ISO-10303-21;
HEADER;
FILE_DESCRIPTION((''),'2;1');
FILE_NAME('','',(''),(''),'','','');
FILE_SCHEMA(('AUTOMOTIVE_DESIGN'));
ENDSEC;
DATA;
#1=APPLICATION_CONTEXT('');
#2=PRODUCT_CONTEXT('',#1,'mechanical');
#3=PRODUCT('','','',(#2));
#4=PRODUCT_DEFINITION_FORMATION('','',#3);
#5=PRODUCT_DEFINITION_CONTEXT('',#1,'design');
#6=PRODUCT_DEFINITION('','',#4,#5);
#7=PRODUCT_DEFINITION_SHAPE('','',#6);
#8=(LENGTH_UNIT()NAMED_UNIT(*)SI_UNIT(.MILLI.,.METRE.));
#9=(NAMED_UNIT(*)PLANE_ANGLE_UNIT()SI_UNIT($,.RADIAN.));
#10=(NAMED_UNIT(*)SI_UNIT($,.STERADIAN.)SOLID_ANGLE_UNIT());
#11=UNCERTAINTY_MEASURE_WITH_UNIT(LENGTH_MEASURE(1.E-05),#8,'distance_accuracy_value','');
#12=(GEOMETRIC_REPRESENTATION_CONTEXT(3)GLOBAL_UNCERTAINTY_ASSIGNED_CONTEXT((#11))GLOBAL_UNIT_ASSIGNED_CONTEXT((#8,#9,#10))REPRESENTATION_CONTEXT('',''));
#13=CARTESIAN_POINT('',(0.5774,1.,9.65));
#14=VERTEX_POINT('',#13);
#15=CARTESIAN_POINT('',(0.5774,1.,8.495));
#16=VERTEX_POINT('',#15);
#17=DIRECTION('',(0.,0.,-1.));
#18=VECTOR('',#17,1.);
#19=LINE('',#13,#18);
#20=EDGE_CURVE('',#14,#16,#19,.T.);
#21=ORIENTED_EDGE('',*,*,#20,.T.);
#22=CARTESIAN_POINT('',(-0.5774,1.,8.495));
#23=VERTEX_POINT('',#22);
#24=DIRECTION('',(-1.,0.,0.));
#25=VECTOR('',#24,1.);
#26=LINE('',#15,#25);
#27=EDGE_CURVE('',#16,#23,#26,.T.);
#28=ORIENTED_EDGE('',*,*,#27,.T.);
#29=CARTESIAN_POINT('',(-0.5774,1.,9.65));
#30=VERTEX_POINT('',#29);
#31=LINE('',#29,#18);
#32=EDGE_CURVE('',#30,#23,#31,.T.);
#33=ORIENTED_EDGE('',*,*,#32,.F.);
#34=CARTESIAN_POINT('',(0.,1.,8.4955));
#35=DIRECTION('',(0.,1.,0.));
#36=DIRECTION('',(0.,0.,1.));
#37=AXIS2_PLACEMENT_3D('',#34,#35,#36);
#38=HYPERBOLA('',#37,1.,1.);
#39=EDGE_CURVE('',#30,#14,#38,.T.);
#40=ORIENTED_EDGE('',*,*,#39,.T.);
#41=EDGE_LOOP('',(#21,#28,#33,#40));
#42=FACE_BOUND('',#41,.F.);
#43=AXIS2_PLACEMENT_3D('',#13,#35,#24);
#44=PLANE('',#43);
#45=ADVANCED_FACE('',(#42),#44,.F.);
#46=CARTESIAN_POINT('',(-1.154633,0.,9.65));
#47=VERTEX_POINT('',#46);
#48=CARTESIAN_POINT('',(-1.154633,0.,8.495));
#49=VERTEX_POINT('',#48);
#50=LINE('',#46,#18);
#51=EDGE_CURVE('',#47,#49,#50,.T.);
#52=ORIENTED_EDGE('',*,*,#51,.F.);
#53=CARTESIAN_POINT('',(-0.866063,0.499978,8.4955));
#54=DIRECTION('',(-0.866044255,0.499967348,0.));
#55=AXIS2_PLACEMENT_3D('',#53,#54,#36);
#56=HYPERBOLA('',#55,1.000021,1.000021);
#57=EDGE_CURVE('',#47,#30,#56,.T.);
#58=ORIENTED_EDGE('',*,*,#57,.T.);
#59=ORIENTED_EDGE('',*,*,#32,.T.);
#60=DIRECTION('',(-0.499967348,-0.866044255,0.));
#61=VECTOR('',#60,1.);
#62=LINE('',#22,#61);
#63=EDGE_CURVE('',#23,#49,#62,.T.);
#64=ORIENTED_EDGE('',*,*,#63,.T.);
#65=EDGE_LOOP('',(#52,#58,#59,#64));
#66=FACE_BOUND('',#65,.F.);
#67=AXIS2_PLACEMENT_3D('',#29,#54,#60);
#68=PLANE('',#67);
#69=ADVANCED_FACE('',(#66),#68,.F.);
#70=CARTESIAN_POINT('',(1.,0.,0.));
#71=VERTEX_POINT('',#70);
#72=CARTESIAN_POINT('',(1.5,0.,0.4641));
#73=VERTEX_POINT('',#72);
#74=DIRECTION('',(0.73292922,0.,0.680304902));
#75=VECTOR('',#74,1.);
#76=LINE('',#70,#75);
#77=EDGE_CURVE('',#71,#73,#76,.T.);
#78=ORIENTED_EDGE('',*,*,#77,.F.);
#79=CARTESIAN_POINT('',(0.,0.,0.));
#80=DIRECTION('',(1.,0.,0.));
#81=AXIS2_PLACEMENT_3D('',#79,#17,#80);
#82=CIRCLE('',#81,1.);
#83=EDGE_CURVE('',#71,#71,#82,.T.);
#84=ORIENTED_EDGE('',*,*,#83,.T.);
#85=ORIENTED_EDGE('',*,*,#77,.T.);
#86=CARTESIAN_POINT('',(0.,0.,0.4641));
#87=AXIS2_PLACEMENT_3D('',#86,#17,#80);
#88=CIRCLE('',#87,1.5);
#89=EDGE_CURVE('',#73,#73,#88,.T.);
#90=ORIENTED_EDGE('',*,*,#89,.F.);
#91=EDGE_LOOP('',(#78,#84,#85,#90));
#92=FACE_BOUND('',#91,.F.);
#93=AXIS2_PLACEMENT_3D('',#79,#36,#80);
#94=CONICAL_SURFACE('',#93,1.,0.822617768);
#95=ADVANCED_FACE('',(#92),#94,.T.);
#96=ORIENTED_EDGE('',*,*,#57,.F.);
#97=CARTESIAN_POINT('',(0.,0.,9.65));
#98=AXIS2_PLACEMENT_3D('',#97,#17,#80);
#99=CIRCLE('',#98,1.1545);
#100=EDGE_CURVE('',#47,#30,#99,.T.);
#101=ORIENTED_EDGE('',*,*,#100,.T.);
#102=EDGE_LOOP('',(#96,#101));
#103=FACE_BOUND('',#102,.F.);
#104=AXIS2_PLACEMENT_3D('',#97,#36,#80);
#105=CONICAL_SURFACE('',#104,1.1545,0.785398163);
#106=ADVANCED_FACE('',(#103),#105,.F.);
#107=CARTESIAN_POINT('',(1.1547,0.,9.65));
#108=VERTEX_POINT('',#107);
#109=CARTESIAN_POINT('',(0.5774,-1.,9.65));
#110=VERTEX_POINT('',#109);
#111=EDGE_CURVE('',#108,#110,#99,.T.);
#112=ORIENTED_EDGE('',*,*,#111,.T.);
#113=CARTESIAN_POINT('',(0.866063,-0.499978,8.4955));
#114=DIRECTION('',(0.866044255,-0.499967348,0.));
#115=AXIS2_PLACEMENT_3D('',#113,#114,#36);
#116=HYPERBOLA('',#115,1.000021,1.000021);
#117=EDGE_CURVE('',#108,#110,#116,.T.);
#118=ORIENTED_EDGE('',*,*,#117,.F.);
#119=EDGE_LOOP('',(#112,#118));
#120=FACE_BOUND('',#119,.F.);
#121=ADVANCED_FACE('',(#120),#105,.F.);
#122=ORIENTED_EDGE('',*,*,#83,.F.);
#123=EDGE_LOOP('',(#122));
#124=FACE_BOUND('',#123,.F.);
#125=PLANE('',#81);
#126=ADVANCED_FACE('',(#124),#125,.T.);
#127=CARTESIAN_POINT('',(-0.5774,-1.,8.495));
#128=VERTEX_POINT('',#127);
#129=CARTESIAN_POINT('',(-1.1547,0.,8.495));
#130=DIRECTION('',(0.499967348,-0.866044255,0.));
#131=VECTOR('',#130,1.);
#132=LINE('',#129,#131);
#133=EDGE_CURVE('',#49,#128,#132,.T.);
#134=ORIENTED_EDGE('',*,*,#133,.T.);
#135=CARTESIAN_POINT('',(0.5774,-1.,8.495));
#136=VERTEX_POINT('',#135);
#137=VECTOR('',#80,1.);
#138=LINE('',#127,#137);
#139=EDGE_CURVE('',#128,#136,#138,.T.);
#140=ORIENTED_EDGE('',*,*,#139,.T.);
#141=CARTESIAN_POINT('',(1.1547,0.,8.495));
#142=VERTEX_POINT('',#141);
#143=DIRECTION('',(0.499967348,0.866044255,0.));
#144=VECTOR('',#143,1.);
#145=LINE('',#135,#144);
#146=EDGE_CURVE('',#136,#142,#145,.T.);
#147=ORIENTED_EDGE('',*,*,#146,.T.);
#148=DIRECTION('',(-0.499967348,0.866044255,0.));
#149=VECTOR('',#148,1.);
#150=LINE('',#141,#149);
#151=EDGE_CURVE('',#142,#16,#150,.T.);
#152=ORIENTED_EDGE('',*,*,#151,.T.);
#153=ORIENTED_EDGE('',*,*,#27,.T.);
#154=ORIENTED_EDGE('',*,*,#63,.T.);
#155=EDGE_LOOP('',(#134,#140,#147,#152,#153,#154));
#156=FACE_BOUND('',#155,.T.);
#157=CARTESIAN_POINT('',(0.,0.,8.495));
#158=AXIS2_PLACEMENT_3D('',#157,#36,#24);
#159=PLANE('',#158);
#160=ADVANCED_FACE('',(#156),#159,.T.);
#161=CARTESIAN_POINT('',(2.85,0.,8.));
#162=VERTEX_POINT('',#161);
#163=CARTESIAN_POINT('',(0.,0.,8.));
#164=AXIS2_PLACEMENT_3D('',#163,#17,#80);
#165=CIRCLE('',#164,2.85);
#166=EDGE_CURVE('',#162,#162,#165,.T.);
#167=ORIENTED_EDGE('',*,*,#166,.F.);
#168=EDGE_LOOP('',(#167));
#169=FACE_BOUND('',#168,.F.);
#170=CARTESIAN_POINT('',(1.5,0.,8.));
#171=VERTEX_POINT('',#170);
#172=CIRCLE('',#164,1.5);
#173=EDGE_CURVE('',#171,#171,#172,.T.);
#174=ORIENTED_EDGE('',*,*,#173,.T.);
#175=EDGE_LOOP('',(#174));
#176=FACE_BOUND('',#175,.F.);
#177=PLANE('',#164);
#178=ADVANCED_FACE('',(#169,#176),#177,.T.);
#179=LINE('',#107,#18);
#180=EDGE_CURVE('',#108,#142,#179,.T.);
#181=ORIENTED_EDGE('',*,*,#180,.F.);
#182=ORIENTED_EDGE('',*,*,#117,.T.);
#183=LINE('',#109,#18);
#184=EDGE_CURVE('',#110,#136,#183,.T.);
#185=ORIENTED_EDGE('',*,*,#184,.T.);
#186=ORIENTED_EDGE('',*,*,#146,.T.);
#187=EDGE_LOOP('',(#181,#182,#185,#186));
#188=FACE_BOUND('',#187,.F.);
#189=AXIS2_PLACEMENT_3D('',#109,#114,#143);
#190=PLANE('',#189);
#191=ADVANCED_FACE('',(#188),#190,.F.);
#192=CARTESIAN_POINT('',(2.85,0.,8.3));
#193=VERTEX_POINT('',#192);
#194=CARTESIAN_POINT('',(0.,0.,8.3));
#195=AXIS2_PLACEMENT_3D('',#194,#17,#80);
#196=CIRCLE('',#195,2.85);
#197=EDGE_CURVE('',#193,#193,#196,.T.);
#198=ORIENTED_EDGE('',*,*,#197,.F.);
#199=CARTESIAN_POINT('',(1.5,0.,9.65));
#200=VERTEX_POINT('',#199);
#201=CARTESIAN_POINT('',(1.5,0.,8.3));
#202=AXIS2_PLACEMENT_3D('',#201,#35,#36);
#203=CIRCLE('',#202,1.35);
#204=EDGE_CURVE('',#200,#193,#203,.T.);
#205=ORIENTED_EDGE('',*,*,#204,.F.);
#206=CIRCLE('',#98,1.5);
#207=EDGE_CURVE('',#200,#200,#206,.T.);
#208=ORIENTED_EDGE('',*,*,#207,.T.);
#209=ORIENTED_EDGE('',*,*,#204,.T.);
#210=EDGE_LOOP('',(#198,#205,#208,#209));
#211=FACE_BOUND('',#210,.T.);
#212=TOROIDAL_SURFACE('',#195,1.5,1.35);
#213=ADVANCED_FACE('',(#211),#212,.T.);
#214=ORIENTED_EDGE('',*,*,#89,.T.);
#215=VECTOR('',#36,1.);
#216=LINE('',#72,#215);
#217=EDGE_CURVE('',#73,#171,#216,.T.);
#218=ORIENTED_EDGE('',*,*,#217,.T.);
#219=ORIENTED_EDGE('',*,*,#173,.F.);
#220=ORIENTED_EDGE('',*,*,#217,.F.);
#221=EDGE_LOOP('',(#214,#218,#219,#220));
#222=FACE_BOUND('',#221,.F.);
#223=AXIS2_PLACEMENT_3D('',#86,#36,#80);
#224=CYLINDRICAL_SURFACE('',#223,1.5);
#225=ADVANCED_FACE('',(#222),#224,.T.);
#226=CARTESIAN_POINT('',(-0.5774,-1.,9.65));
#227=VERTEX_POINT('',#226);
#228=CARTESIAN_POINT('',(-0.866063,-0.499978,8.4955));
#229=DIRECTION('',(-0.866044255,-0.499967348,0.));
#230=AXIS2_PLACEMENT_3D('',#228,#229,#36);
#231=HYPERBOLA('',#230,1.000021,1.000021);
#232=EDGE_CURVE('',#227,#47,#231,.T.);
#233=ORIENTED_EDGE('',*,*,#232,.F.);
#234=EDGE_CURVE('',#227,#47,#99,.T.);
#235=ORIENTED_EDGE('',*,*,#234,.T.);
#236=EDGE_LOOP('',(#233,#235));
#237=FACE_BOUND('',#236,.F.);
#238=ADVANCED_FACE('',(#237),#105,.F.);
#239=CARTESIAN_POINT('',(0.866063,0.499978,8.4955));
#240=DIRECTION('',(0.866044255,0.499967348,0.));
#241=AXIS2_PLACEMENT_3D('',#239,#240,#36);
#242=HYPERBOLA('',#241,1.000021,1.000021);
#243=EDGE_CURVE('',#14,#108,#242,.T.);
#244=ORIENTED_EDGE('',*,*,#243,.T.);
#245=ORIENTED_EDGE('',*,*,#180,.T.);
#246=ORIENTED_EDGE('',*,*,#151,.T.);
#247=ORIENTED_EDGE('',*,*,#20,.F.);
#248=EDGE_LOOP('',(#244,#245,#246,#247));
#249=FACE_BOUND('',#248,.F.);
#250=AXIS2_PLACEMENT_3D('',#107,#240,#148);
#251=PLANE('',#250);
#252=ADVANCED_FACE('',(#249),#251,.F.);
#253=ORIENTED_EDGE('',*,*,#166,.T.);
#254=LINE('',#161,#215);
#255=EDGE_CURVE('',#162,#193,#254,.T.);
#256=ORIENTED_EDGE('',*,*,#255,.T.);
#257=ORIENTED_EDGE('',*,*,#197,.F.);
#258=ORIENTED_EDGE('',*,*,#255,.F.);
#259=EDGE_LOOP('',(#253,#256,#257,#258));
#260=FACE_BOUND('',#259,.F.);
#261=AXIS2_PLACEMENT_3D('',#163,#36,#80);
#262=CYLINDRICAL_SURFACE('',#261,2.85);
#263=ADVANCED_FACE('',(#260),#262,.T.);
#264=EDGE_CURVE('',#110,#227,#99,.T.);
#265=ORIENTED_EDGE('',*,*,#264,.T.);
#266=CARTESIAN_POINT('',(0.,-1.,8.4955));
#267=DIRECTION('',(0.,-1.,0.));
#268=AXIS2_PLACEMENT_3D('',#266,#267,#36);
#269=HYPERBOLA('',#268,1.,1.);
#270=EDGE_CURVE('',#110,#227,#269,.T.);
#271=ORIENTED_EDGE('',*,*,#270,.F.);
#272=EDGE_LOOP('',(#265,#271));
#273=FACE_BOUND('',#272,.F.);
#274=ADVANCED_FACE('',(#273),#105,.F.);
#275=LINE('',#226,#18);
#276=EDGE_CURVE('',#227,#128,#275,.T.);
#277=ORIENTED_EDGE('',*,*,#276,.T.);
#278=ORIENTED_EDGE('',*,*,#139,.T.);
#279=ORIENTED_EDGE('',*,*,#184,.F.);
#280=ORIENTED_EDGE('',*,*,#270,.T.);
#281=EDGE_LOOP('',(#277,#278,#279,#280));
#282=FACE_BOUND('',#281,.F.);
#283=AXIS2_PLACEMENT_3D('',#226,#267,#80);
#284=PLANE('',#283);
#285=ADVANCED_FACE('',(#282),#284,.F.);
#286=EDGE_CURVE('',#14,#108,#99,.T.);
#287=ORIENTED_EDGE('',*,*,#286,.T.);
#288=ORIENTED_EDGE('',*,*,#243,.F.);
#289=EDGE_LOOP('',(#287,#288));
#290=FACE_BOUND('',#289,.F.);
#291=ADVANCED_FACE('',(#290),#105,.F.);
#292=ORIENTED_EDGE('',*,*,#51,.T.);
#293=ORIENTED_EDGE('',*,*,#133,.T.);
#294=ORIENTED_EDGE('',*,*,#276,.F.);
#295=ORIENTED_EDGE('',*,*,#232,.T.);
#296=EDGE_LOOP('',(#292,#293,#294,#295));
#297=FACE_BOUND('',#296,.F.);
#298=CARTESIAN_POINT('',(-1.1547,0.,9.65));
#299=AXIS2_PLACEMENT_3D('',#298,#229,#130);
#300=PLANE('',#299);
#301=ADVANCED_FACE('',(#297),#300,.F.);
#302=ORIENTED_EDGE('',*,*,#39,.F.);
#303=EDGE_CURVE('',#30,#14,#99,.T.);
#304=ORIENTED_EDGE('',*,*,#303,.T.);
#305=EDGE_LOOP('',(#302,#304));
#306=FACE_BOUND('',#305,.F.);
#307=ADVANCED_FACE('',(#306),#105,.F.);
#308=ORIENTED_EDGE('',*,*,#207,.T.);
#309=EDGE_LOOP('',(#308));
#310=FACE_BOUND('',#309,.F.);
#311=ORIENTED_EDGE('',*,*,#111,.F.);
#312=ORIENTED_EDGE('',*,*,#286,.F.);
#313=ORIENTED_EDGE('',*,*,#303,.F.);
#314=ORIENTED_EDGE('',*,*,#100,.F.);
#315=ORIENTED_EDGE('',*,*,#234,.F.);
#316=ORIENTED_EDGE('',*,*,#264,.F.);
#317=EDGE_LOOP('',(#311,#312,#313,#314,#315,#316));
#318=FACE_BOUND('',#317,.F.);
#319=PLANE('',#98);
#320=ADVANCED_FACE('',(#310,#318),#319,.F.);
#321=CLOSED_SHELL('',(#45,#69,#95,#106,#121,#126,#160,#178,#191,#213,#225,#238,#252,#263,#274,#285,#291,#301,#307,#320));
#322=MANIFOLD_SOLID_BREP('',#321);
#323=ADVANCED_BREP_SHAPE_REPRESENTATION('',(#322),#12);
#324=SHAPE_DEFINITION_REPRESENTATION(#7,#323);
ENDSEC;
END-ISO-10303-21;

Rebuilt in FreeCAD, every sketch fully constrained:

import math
import FreeCAD as App
import Part
import Sketcher

V = App.Vector
Q = App.Units.Quantity

doc = App.newDocument("Part")
params = doc.addObject("Spreadsheet::Sheet", "Params")
for row, (alias, value) in enumerate([
    ("revolution_angle", "360 deg"),
    ("pocket1_length", "1.155 mm"),
], start=1):
    params.set(f"A{row}", alias)
    params.set(f"B{row}", "=" + value)
    params.setAlias(f"B{row}", alias)

body = doc.addObject("PartDesign::Body", "Body")

sketch1 = body.newObject("Sketcher::SketchObject", "Sketch")
sketch1.AttachmentSupport = (doc.getObject("XZ_Plane"), [""])
sketch1.MapMode = "FlatFace"
sketch1.addGeometry([
    Part.LineSegment(V(1, 0, 0), V(0, 0, 0)),
    Part.LineSegment(V(0, 0, 0), V(0, 8.5, 0)),
    Part.LineSegment(V(0, 8.5, 0), V(1.15, 9.65, 0)),
    Part.LineSegment(V(1.15, 9.65, 0), V(1.5, 9.65, 0)),
    Part.ArcOfCircle(Part.Circle(V(1.5, 8.3, 0), V(0, 0, 1), 1.35), math.radians(0), math.radians(90)),
    Part.LineSegment(V(2.85, 8.3, 0), V(2.85, 8, 0)),
    Part.LineSegment(V(2.85, 8, 0), V(1.5, 8, 0)),
    Part.LineSegment(V(1.5, 8, 0), V(1.5, 0.46, 0)),
    Part.LineSegment(V(1.5, 0.46, 0), V(1, 0, 0)),
], False)
sketch1.addConstraint([
    Sketcher.Constraint("Coincident", 0, 2, 1, 1),
    Sketcher.Constraint("Coincident", 1, 2, 2, 1),
    Sketcher.Constraint("Coincident", 2, 2, 3, 1),
    Sketcher.Constraint("Tangent", 3, 2, 4, 2),
    Sketcher.Constraint("Tangent", 4, 1, 5, 1),
    Sketcher.Constraint("Coincident", 5, 2, 6, 1),
    Sketcher.Constraint("Coincident", 6, 2, 7, 1),
    Sketcher.Constraint("Coincident", 7, 2, 8, 1),
    Sketcher.Constraint("Coincident", 8, 2, 0, 1),
    Sketcher.Constraint("Horizontal", 0),
    Sketcher.Constraint("Vertical", 1),
    Sketcher.Constraint("Horizontal", 3),
    Sketcher.Constraint("Vertical", 5),
    Sketcher.Constraint("Horizontal", 6),
    Sketcher.Constraint("Vertical", 7),
    Sketcher.Constraint("Coincident", 0, 2, -1, 1),
    Sketcher.Constraint("Vertical", 3, 2, 6, 2),
    Sketcher.Constraint("Angle", 2, Q("45 deg")),
    Sketcher.Constraint("DistanceY", -1, 1, 5, 2, 8.0),
    Sketcher.Constraint("DistanceX", -1, 1, 4, 3, 1.5),
    Sketcher.Constraint("DistanceX", 8, 2, 7, 2, 0.5),
    Sketcher.Constraint("DistanceX", -1, 1, 4, 1, 2.85),
    Sketcher.Constraint("DistanceY", 5, 2, 3, 2, 1.65),
    Sketcher.Constraint("DistanceX", -1, 1, 2, 2, 1.1545),
    Sketcher.Constraint("DistanceY", 7, 2, 7, 1, 7.536),
])
revolution = body.newObject("PartDesign::Revolution", "Revolution")
revolution.Profile = sketch1
revolution.ReferenceAxis = (sketch1, ["V_Axis"])
revolution.setExpression("Angle", "Params.revolution_angle")

sketch2 = body.newObject("Sketcher::SketchObject", "Sketch001")
sketch2.AttachmentSupport = (doc.getObject("XY_Plane"), [""])
sketch2.MapMode = "FlatFace"
sketch2.AttachmentOffset = App.Placement(V(0, 0, 9.65), App.Rotation())
sketch2.addGeometry([
    Part.LineSegment(V(-0.6, 1, 0), V(-1.2, 0, 0)),
    Part.LineSegment(V(-1.2, 0, 0), V(-0.6, -1, 0)),
    Part.LineSegment(V(-0.6, -1, 0), V(0.6, -1, 0)),
    Part.LineSegment(V(0.6, -1, 0), V(1.2, 0, 0)),
    Part.LineSegment(V(1.2, 0, 0), V(0.6, 1, 0)),
    Part.LineSegment(V(0.6, 1, 0), V(-0.6, 1, 0)),
], False)
sketch2.addConstraint([
    Sketcher.Constraint("Coincident", 0, 2, 1, 1),
    Sketcher.Constraint("Coincident", 1, 2, 2, 1),
    Sketcher.Constraint("Coincident", 2, 2, 3, 1),
    Sketcher.Constraint("Coincident", 3, 2, 4, 1),
    Sketcher.Constraint("Coincident", 4, 2, 5, 1),
    Sketcher.Constraint("Coincident", 5, 2, 0, 1),
    Sketcher.Constraint("Horizontal", 2),
    Sketcher.Constraint("Horizontal", 5),
    Sketcher.Constraint("Symmetric", 0, 2, 3, 2, -1, 1),
    Sketcher.Constraint("Symmetric", 1, 2, 4, 2, -1, 1),
    Sketcher.Constraint("PointOnObject", 0, 2, -1),
    Sketcher.Constraint("Parallel", 0, 3),
    Sketcher.Constraint("Vertical", 2, 2, 4, 2),
    Sketcher.Constraint("DistanceY", 1, 2, -1, 1, 1.0),
    Sketcher.Constraint("DistanceX", 2, 1, 2, 2, 1.1548),
    Sketcher.Constraint("DistanceX", 0, 2, 2, 2, 1.732),
])
pocket1 = body.newObject("PartDesign::Pocket", "Pocket")
pocket1.Profile = sketch2
pocket1.setExpression("Length", "Params.pocket1_length")

doc.recompute()
